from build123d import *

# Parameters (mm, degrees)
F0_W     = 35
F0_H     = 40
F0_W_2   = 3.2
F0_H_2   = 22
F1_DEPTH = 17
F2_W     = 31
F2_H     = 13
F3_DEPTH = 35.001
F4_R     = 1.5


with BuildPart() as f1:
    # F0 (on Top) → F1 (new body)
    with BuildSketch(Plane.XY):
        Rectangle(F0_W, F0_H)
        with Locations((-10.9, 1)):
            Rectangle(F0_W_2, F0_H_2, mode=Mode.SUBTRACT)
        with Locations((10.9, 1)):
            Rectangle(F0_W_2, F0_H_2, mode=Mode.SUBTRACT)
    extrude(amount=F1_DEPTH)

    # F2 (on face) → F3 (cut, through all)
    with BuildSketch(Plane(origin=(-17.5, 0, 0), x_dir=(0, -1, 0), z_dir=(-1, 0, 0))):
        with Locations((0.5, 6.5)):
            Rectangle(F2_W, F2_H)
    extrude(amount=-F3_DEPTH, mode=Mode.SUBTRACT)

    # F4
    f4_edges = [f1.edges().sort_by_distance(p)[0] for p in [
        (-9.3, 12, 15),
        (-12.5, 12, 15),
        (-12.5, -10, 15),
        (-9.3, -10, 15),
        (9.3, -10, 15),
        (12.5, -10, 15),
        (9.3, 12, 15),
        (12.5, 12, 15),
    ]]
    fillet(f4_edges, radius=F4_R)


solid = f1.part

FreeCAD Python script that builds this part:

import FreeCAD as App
import Part
import Sketcher
Q = App.Units.Quantity


def edges_at(feature, points):
    """Names of the edges that pass closest to the given points."""
    edges = feature.Shape.Edges
    near = lambda p: min(range(len(edges)), key=lambda i: edges[i].distToShape(Part.Vertex(*p))[0])
    return sorted({f"Edge{near(p) + 1}" for p in points})


def add_polygon(sketch, points):
    """Adds a closed chain of lines whose ends are joined by coincident constraints."""
    first, n = sketch.GeometryCount, len(points)
    for a, b in zip(points, points[1:] + points[:1]):
        sketch.addGeometry(Part.LineSegment(App.Vector(*a, 0), App.Vector(*b, 0)), False)
    for i in range(n):
        sketch.addConstraint(Sketcher.Constraint("Coincident", first + i, 2, first + (i + 1) % n, 1))

doc = App.newDocument("Part")
params = doc.addObject("Spreadsheet::Sheet", "Params")
for row, (alias, value) in enumerate([
    ("sketch1_width", "35 mm"),
    ("sketch1_height", "40 mm"),
    ("sketch1_height2", "22 mm"),
    ("sketch1_width2", "3.2 mm"),
    ("pad1_length", "17 mm"),
    ("sketch2_width", "31 mm"),
    ("sketch2_height", "13 mm"),
    ("fillet_radius", "1.5 mm"),
], start=1):
    params.set(f"A{row}", alias)
    params.set(f"B{row}", "=" + value)
    params.setAlias(f"B{row}", alias)

body = doc.addObject("PartDesign::Body", "Body")

# Sketch on XY plane
sketch1 = body.newObject("Sketcher::SketchObject", "Sketch")
sketch1.AttachmentSupport = (doc.getObject("XY_Plane"), [""])
sketch1.MapMode = "FlatFace"
add_polygon(sketch1, [(-17.5, 20), (-17.5, -20), (17.5, -20), (17.5, 20)])  # lines 0-3
add_polygon(sketch1, [(-9.3, -10), (-12.5, -10), (-12.5, 12), (-9.3, 12)])  # lines 4-7
add_polygon(sketch1, [(12.5, -10), (9.3, -10), (9.3, 12), (12.5, 12)])  # lines 8-11
sketch1.addConstraint([
    Sketcher.Constraint("Vertical", 0),
    Sketcher.Constraint("Horizontal", 1),
    Sketcher.Constraint("Vertical", 2),
    Sketcher.Constraint("Horizontal", 3),
    Sketcher.Constraint("Horizontal", 4),
    Sketcher.Constraint("Vertical", 5),
    Sketcher.Constraint("Horizontal", 6),
    Sketcher.Constraint("Vertical", 7),
    Sketcher.Constraint("Horizontal", 8),
    Sketcher.Constraint("Vertical", 9),
    Sketcher.Constraint("Horizontal", 10),
    Sketcher.Constraint("Vertical", 11),
    Sketcher.Constraint("Symmetric", 0, 2, 2, 2, -1, 1),
    Sketcher.Constraint("Symmetric", 7, 2, 8, 2, -2),
    Sketcher.Constraint("Symmetric", 5, 2, 10, 2, -2),
    Sketcher.Constraint("DistanceX", 1, 1, 1, 2, Q("35 mm")),
    Sketcher.Constraint("DistanceY", 0, 2, 0, 1, Q("40 mm")),
    Sketcher.Constraint("DistanceY", 5, 1, 5, 2, Q("22 mm")),
    Sketcher.Constraint("DistanceX", 4, 2, 4, 1, Q("3.2 mm")),
    Sketcher.Constraint("DistanceY", 4, 2, -1, 1, Q("10 mm")),
    Sketcher.Constraint("DistanceX", 0, 2, 4, 2, Q("5 mm")),
])
sketch1.setExpression("Constraints[27]", "Params.sketch1_width")
sketch1.setExpression("Constraints[28]", "Params.sketch1_height")
sketch1.setExpression("Constraints[29]", "Params.sketch1_height2")
sketch1.setExpression("Constraints[30]", "Params.sketch1_width2")
pad1 = body.newObject("PartDesign::Pad", "Pad")
pad1.Profile = sketch1
pad1.setExpression("Length", "Params.pad1_length")

# Sketch on YZ plane
sketch2 = body.newObject("Sketcher::SketchObject", "Sketch001")
sketch2.AttachmentSupport = (doc.getObject("YZ_Plane"), [""])
sketch2.MapMode = "FlatFace"
sketch2.AttachmentOffset = App.Placement(App.Vector(0, 0, -17.5), App.Rotation())
add_polygon(sketch2, [(15, 13), (15, 0), (-16, 0), (-16, 13)])  # lines 0-3
sketch2.addConstraint([
    Sketcher.Constraint("Vertical", 0),
    Sketcher.Constraint("Horizontal", 1),
    Sketcher.Constraint("Vertical", 2),
    Sketcher.Constraint("Horizontal", 3),
    Sketcher.Constraint("PointOnObject", 0, 2, -1),
    Sketcher.Constraint("DistanceX", 1, 2, 1, 1, Q("31 mm")),
    Sketcher.Constraint("DistanceY", 0, 2, 0, 1, Q("13 mm")),
    Sketcher.Constraint("DistanceX", -1, 1, 0, 2, Q("15 mm")),
])
sketch2.setExpression("Constraints[9]", "Params.sketch2_width")
sketch2.setExpression("Constraints[10]", "Params.sketch2_height")
pocket1 = body.newObject("PartDesign::Pocket", "Pocket")
pocket1.Profile = sketch2
pocket1.Type = "ThroughAll"
pocket1.Reversed = True
doc.recompute()

fillet = body.newObject("PartDesign::Fillet", "Fillet")
fillet.Base = (pocket1, edges_at(pocket1, [
    (-9.3, 12, 15),
    (-12.5, 12, 15),
    (-12.5, -10, 15),
    (-9.3, -10, 15),
    (9.3, -10, 15),
    (12.5, -10, 15),
    (9.3, 12, 15),
    (12.5, 12, 15),
]))
fillet.setExpression("Radius", "Params.fillet_radius")

doc.recompute()
